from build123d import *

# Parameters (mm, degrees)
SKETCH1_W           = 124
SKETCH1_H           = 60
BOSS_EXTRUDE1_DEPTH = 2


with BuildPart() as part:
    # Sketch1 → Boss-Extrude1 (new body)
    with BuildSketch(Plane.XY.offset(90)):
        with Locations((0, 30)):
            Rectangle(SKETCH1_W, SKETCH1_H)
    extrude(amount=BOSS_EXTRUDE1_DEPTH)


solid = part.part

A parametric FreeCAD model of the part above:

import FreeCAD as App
import Part
import Sketcher
Q = App.Units.Quantity

doc = App.newDocument("Part")
body = doc.addObject("PartDesign::Body", "Body")

# Sketch on XY plane
sketch1 = doc.addObject("Sketcher::SketchObject", "Sketch")
body.addObject(sketch1)
sketch1.AttachmentSupport = (doc.XY_Plane, [""])
sketch1.MapMode = "FlatFace"
sketch1.AttachmentOffset = App.Placement(App.Vector(0, 0, 90), App.Rotation())
sketch1.addGeometry(Part.LineSegment(App.Vector(-62, 60, 0), App.Vector(-62, 0, 0)), False)
sketch1.addGeometry(Part.LineSegment(App.Vector(-62, 0, 0), App.Vector(62, 0, 0)), False)
sketch1.addGeometry(Part.LineSegment(App.Vector(62, 0, 0), App.Vector(62, 60, 0)), False)
sketch1.addGeometry(Part.LineSegment(App.Vector(62, 60, 0), App.Vector(-62, 60, 0)), False)
sketch1.addConstraint(Sketcher.Constraint("Coincident", 0, 2, 1, 1))
sketch1.addConstraint(Sketcher.Constraint("Coincident", 1, 2, 2, 1))
sketch1.addConstraint(Sketcher.Constraint("Coincident", 2, 2, 3, 1))
sketch1.addConstraint(Sketcher.Constraint("Coincident", 3, 2, 0, 1))
sketch1.addConstraint(Sketcher.Constraint("Vertical", 0))
sketch1.addConstraint(Sketcher.Constraint("Horizontal", 1))
sketch1.addConstraint(Sketcher.Constraint("Vertical", 2))
sketch1.addConstraint(Sketcher.Constraint("Horizontal", 3))
sketch1.addConstraint(Sketcher.Constraint("Symmetric", 0, 2, 1, 2, -1, 1))
sketch1.addConstraint(Sketcher.Constraint("DistanceX", 1, 1, 1, 2, Q("124 mm")))
sketch1.addConstraint(Sketcher.Constraint("DistanceY", 0, 2, 0, 1, Q("60 mm")))
pad1 = doc.addObject("PartDesign::Pad", "Pad")
body.addObject(pad1)
pad1.Profile = sketch1
pad1.Length = 2

doc.recompute()
